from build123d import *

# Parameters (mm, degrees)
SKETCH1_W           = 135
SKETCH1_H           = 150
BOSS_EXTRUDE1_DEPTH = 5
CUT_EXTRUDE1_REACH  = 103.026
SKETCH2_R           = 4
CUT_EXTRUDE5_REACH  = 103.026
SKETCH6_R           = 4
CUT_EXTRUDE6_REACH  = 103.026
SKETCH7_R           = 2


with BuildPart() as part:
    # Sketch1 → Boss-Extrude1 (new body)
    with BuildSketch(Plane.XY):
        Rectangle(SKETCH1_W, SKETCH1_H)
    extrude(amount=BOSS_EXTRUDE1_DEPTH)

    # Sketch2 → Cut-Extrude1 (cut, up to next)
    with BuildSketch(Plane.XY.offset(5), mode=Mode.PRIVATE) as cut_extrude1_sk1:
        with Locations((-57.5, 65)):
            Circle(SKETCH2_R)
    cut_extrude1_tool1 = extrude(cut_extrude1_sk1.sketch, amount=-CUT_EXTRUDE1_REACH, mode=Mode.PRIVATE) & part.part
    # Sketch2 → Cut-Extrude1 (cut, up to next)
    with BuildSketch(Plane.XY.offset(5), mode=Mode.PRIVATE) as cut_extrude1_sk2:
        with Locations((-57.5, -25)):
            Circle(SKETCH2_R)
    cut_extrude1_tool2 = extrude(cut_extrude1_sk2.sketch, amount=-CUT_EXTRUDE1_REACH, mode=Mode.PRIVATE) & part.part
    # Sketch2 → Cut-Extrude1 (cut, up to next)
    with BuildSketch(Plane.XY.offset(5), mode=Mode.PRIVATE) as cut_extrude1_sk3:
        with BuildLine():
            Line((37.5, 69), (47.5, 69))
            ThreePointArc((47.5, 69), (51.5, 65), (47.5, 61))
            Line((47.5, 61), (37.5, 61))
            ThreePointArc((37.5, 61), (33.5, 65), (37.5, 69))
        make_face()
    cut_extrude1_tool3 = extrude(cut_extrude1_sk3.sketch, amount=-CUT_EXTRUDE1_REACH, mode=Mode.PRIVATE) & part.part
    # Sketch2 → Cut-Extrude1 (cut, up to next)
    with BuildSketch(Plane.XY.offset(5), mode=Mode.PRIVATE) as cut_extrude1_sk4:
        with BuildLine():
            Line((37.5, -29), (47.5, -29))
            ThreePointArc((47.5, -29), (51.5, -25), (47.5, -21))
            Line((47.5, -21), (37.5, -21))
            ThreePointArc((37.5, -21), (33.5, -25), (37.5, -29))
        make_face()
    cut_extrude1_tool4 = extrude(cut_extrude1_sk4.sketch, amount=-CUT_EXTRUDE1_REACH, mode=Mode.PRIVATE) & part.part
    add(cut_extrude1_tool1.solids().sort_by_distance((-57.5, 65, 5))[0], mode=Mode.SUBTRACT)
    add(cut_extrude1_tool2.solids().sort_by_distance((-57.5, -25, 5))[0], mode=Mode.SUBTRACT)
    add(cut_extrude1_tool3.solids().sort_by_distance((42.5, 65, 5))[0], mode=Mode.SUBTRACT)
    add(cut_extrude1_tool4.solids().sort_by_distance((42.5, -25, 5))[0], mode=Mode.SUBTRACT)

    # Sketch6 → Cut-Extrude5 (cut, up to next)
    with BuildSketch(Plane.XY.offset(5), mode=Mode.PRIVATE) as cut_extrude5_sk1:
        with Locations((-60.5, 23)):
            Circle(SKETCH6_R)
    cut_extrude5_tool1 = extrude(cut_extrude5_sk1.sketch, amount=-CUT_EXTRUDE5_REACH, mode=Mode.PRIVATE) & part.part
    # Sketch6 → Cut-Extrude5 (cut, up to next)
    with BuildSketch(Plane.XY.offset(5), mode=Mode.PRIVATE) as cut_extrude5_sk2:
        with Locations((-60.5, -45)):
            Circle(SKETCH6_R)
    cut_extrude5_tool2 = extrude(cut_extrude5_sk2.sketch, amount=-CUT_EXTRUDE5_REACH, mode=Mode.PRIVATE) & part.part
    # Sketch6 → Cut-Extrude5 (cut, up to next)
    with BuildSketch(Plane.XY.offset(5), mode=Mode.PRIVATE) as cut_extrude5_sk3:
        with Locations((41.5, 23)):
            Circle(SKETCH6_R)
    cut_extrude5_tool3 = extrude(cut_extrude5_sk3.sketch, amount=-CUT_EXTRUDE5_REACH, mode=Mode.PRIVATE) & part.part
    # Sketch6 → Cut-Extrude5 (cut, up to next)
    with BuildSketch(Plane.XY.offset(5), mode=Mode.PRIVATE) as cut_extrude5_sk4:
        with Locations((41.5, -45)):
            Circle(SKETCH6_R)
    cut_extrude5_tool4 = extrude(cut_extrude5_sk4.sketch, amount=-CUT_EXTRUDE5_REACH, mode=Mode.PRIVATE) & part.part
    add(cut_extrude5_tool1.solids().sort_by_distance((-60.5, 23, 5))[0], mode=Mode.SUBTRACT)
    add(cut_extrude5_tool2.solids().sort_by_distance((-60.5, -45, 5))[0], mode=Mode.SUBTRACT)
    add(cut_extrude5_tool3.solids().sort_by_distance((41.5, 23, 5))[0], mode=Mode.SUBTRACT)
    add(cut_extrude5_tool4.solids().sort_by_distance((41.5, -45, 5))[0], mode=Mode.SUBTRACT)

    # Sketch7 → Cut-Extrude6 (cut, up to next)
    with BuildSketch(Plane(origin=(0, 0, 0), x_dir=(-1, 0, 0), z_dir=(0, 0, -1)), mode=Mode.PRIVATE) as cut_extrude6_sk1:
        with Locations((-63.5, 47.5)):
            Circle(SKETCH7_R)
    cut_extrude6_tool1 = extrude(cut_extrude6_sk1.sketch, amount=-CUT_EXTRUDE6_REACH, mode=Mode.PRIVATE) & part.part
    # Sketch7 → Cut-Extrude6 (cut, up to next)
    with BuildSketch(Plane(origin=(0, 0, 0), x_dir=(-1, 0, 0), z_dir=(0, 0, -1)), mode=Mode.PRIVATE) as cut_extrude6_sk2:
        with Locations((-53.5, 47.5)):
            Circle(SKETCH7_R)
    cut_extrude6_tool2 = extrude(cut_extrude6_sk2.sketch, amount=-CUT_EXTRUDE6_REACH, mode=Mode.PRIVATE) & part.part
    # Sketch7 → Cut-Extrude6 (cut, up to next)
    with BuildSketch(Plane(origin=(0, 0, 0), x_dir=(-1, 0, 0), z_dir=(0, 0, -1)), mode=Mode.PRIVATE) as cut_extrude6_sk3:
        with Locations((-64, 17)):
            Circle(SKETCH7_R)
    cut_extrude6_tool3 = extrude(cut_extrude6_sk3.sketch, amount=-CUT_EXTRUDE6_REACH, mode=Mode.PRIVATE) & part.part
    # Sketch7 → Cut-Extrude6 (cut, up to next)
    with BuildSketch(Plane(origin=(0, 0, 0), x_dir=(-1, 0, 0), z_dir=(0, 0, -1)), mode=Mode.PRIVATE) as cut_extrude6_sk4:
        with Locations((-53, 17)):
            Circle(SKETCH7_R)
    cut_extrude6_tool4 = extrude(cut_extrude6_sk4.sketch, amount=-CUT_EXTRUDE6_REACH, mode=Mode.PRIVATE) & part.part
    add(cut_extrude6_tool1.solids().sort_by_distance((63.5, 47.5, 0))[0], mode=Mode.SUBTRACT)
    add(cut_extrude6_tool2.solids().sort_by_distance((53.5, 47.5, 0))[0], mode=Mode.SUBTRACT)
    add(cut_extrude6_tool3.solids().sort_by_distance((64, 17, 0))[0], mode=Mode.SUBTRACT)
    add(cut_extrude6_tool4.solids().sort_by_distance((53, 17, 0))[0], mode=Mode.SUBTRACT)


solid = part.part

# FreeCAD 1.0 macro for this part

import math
import FreeCAD as App
import Part
import Sketcher
Q = App.Units.Quantity

doc = App.newDocument("Part")
body = doc.addObject("PartDesign::Body", "Body")

sketch1 = body.newObject("Sketcher::SketchObject", "Sketch")
sketch1.AttachmentSupport = (doc.getObject("XY_Plane"), [""])
sketch1.MapMode = "FlatFace"
sketch1.addGeometry([
    Part.LineSegment(App.Vector(-67.5, 75, 0), App.Vector(-67.5, -75, 0)),
    Part.LineSegment(App.Vector(-67.5, -75, 0), App.Vector(67.5, -75, 0)),
    Part.LineSegment(App.Vector(67.5, -75, 0), App.Vector(67.5, 75, 0)),
    Part.LineSegment(App.Vector(67.5, 75, 0), App.Vector(-67.5, 75, 0)),
], False)
sketch1.addConstraint([
    Sketcher.Constraint("Coincident", 0, 2, 1, 1),
    Sketcher.Constraint("Coincident", 1, 2, 2, 1),
    Sketcher.Constraint("Coincident", 2, 2, 3, 1),
    Sketcher.Constraint("Coincident", 3, 2, 0, 1),
    Sketcher.Constraint("Vertical", 0),
    Sketcher.Constraint("Horizontal", 1),
    Sketcher.Constraint("Vertical", 2),
    Sketcher.Constraint("Horizontal", 3),
    Sketcher.Constraint("Symmetric", 0, 2, 2, 2, -1, 1),
    Sketcher.Constraint("DistanceX", 1, 1, 1, 2, Q("135 mm")),
    Sketcher.Constraint("DistanceY", 0, 2, 0, 1, Q("150 mm")),
])
pad1 = body.newObject("PartDesign::Pad", "Pad")
pad1.Profile = sketch1
pad1.Length = 5

sketch2 = body.newObject("Sketcher::SketchObject", "Sketch001")
sketch2.AttachmentSupport = (doc.getObject("XY_Plane"), [""])
sketch2.MapMode = "FlatFace"
sketch2.AttachmentOffset = App.Placement(App.Vector(0, 0, 5), App.Rotation())
sketch2.addGeometry(Part.Circle(App.Vector(-57.5, 65, 0), App.Vector(0, 0, 1), 4), False)
sketch2.addConstraint([
    Sketcher.Constraint("Diameter", 0, Q("8 mm")),
    Sketcher.Constraint("DistanceY", -1, 1, 0, 3, Q("65 mm")),
    Sketcher.Constraint("DistanceX", 0, 3, -1, 1, Q("57.5 mm")),
])
pocket1 = body.newObject("PartDesign::Pocket", "Pocket")
pocket1.Profile = sketch2
pocket1.Type = "UpToFirst"

sketch3 = body.newObject("Sketcher::SketchObject", "Sketch002")
sketch3.AttachmentSupport = (doc.getObject("XY_Plane"), [""])
sketch3.MapMode = "FlatFace"
sketch3.AttachmentOffset = App.Placement(App.Vector(0, 0, 5), App.Rotation())
sketch3.addGeometry(Part.Circle(App.Vector(-57.5, -25, 0), App.Vector(0, 0, 1), 4), False)
sketch3.addConstraint([
    Sketcher.Constraint("Diameter", 0, Q("8 mm")),
    Sketcher.Constraint("DistanceY", 0, 3, -1, 1, Q("25 mm")),
    Sketcher.Constraint("DistanceX", 0, 3, -1, 1, Q("57.5 mm")),
])
pocket2 = body.newObject("PartDesign::Pocket", "Pocket001")
pocket2.Profile = sketch3
pocket2.Type = "UpToFirst"

sketch4 = body.newObject("Sketcher::SketchObject", "Sketch003")
sketch4.AttachmentSupport = (doc.getObject("XY_Plane"), [""])
sketch4.MapMode = "FlatFace"
sketch4.AttachmentOffset = App.Placement(App.Vector(0, 0, 5), App.Rotation())
sketch4.addGeometry([
    Part.LineSegment(App.Vector(47.5, 69, 0), App.Vector(37.5, 69, 0)),
    Part.ArcOfCircle(Part.Circle(App.Vector(37.5, 65, 0), App.Vector(0, 0, 1), 4), math.radians(90), math.radians(270)),
    Part.LineSegment(App.Vector(37.5, 61, 0), App.Vector(47.5, 61, 0)),
    Part.ArcOfCircle(Part.Circle(App.Vector(47.5, 65, 0), App.Vector(0, 0, 1), 4), math.radians(-90), math.radians(90)),
], False)
sketch4.addConstraint([
    Sketcher.Constraint("Tangent", 0, 2, 1, 1),
    Sketcher.Constraint("Tangent", 1, 2, 2, 1),
    Sketcher.Constraint("Tangent", 2, 2, 3, 1),
    Sketcher.Constraint("Tangent", 3, 2, 0, 1),
    Sketcher.Constraint("Horizontal", 0),
    Sketcher.Constraint("Horizontal", 2),
    Sketcher.Constraint("Radius", 1, Q("4 mm")),
    Sketcher.Constraint("DistanceX", 0, 2, 0, 1, Q("10 mm")),
    Sketcher.Constraint("DistanceY", -1, 1, 1, 3, Q("65 mm")),
    Sketcher.Constraint("DistanceX", -1, 1, 1, 3, Q("37.5 mm")),
])
pocket3 = body.newObject("PartDesign::Pocket", "Pocket002")
pocket3.Profile = sketch4
pocket3.Type = "UpToFirst"

sketch5 = body.newObject("Sketcher::SketchObject", "Sketch004")
sketch5.AttachmentSupport = (doc.getObject("XY_Plane"), [""])
sketch5.MapMode = "FlatFace"
sketch5.AttachmentOffset = App.Placement(App.Vector(0, 0, 5), App.Rotation())
sketch5.addGeometry([
    Part.LineSegment(App.Vector(37.5, -29, 0), App.Vector(47.5, -29, 0)),
    Part.ArcOfCircle(Part.Circle(App.Vector(47.5, -25, 0), App.Vector(0, 0, 1), 4), math.radians(-90), math.radians(90)),
    Part.LineSegment(App.Vector(47.5, -21, 0), App.Vector(37.5, -21, 0)),
    Part.ArcOfCircle(Part.Circle(App.Vector(37.5, -25, 0), App.Vector(0, 0, 1), 4), math.radians(90), math.radians(270)),
], False)
sketch5.addConstraint([
    Sketcher.Constraint("Tangent", 0, 2, 1, 1),
    Sketcher.Constraint("Tangent", 1, 2, 2, 1),
    Sketcher.Constraint("Tangent", 2, 2, 3, 1),
    Sketcher.Constraint("Tangent", 3, 2, 0, 1),
    Sketcher.Constraint("Horizontal", 0),
    Sketcher.Constraint("Horizontal", 2),
    Sketcher.Constraint("Radius", 1, Q("4 mm")),
    Sketcher.Constraint("DistanceX", 0, 1, 0, 2, Q("10 mm")),
    Sketcher.Constraint("DistanceY", 1, 3, -1, 1, Q("25 mm")),
    Sketcher.Constraint("DistanceX", -1, 1, 1, 3, Q("47.5 mm")),
])
pocket4 = body.newObject("PartDesign::Pocket", "Pocket003")
pocket4.Profile = sketch5
pocket4.Type = "UpToFirst"

sketch6 = body.newObject("Sketcher::SketchObject", "Sketch005")
sketch6.AttachmentSupport = (doc.getObject("XY_Plane"), [""])
sketch6.MapMode = "FlatFace"
sketch6.AttachmentOffset = App.Placement(App.Vector(0, 0, 5), App.Rotation())
sketch6.addGeometry(Part.Circle(App.Vector(-60.5, 23, 0), App.Vector(0, 0, 1), 4), False)
sketch6.addConstraint([
    Sketcher.Constraint("Diameter", 0, Q("8 mm")),
    Sketcher.Constraint("DistanceY", -1, 1, 0, 3, Q("23 mm")),
    Sketcher.Constraint("DistanceX", 0, 3, -1, 1, Q("60.5 mm")),
])
pocket5 = body.newObject("PartDesign::Pocket", "Pocket004")
pocket5.Profile = sketch6
pocket5.Type = "UpToFirst"

sketch7 = body.newObject("Sketcher::SketchObject", "Sketch006")
sketch7.AttachmentSupport = (doc.getObject("XY_Plane"), [""])
sketch7.MapMode = "FlatFace"
sketch7.AttachmentOffset = App.Placement(App.Vector(0, 0, 5), App.Rotation())
sketch7.addGeometry(Part.Circle(App.Vector(-60.5, -45, 0), App.Vector(0, 0, 1), 4), False)
sketch7.addConstraint([
    Sketcher.Constraint("Diameter", 0, Q("8 mm")),
    Sketcher.Constraint("DistanceY", 0, 3, -1, 1, Q("45 mm")),
    Sketcher.Constraint("DistanceX", 0, 3, -1, 1, Q("60.5 mm")),
])
pocket6 = body.newObject("PartDesign::Pocket", "Pocket005")
pocket6.Profile = sketch7
pocket6.Type = "UpToFirst"

sketch8 = body.newObject("Sketcher::SketchObject", "Sketch007")
sketch8.AttachmentSupport = (doc.getObject("XY_Plane"), [""])
sketch8.MapMode = "FlatFace"
sketch8.AttachmentOffset = App.Placement(App.Vector(0, 0, 5), App.Rotation())
sketch8.addGeometry(Part.Circle(App.Vector(41.5, 23, 0), App.Vector(0, 0, 1), 4), False)
sketch8.addConstraint([
    Sketcher.Constraint("Diameter", 0, Q("8 mm")),
    Sketcher.Constraint("DistanceY", -1, 1, 0, 3, Q("23 mm")),
    Sketcher.Constraint("DistanceX", -1, 1, 0, 3, Q("41.5 mm")),
])
pocket7 = body.newObject("PartDesign::Pocket", "Pocket006")
pocket7.Profile = sketch8
pocket7.Type = "UpToFirst"

sketch9 = body.newObject("Sketcher::SketchObject", "Sketch008")
sketch9.AttachmentSupport = (doc.getObject("XY_Plane"), [""])
sketch9.MapMode = "FlatFace"
sketch9.AttachmentOffset = App.Placement(App.Vector(0, 0, 5), App.Rotation())
sketch9.addGeometry(Part.Circle(App.Vector(41.5, -45, 0), App.Vector(0, 0, 1), 4), False)
sketch9.addConstraint([
    Sketcher.Constraint("Diameter", 0, Q("8 mm")),
    Sketcher.Constraint("DistanceY", 0, 3, -1, 1, Q("45 mm")),
    Sketcher.Constraint("DistanceX", -1, 1, 0, 3, Q("41.5 mm")),
])
pocket8 = body.newObject("PartDesign::Pocket", "Pocket007")
pocket8.Profile = sketch9
pocket8.Type = "UpToFirst"

sketch10 = body.newObject("Sketcher::SketchObject", "Sketch009")
sketch10.AttachmentSupport = (doc.getObject("XY_Plane"), [""])
sketch10.MapMode = "FlatFace"
sketch10.addGeometry(Part.Circle(App.Vector(63.5, 47.5, 0), App.Vector(0, 0, 1), 2), False)
sketch10.addConstraint([
    Sketcher.Constraint("Diameter", 0, Q("4 mm")),
    Sketcher.Constraint("DistanceX", -1, 1, 0, 3, Q("63.5 mm")),
    Sketcher.Constraint("DistanceY", -1, 1, 0, 3, Q("47.5 mm")),
])
pocket9 = body.newObject("PartDesign::Pocket", "Pocket008")
pocket9.Profile = sketch10
pocket9.Type = "UpToFirst"
pocket9.Reversed = True

sketch11 = body.newObject("Sketcher::SketchObject", "Sketch010")
sketch11.AttachmentSupport = (doc.getObject("XY_Plane"), [""])
sketch11.MapMode = "FlatFace"
sketch11.addGeometry(Part.Circle(App.Vector(53.5, 47.5, 0), App.Vector(0, 0, 1), 2), False)
sketch11.addConstraint([
    Sketcher.Constraint("Diameter", 0, Q("4 mm")),
    Sketcher.Constraint("DistanceX", -1, 1, 0, 3, Q("53.5 mm")),
    Sketcher.Constraint("DistanceY", -1, 1, 0, 3, Q("47.5 mm")),
])
pocket10 = body.newObject("PartDesign::Pocket", "Pocket009")
pocket10.Profile = sketch11
pocket10.Type = "UpToFirst"
pocket10.Reversed = True

sketch12 = body.newObject("Sketcher::SketchObject", "Sketch011")
sketch12.AttachmentSupport = (doc.getObject("XY_Plane"), [""])
sketch12.MapMode = "FlatFace"
sketch12.addGeometry(Part.Circle(App.Vector(64, 17, 0), App.Vector(0, 0, 1), 2), False)
sketch12.addConstraint([
    Sketcher.Constraint("Diameter", 0, Q("4 mm")),
    Sketcher.Constraint("DistanceX", -1, 1, 0, 3, Q("64 mm")),
    Sketcher.Constraint("DistanceY", -1, 1, 0, 3, Q("17 mm")),
])
pocket11 = body.newObject("PartDesign::Pocket", "Pocket010")
pocket11.Profile = sketch12
pocket11.Type = "UpToFirst"
pocket11.Reversed = True

sketch13 = body.newObject("Sketcher::SketchObject", "Sketch012")
sketch13.AttachmentSupport = (doc.getObject("XY_Plane"), [""])
sketch13.MapMode = "FlatFace"
sketch13.addGeometry(Part.Circle(App.Vector(53, 17, 0), App.Vector(0, 0, 1), 2), False)
sketch13.addConstraint([
    Sketcher.Constraint("Diameter", 0, Q("4 mm")),
    Sketcher.Constraint("DistanceX", -1, 1, 0, 3, Q("53 mm")),
    Sketcher.Constraint("DistanceY", -1, 1, 0, 3, Q("17 mm")),
])
pocket12 = body.newObject("PartDesign::Pocket", "Pocket011")
pocket12.Profile = sketch13
pocket12.Type = "UpToFirst"
pocket12.Reversed = True

doc.recompute()
